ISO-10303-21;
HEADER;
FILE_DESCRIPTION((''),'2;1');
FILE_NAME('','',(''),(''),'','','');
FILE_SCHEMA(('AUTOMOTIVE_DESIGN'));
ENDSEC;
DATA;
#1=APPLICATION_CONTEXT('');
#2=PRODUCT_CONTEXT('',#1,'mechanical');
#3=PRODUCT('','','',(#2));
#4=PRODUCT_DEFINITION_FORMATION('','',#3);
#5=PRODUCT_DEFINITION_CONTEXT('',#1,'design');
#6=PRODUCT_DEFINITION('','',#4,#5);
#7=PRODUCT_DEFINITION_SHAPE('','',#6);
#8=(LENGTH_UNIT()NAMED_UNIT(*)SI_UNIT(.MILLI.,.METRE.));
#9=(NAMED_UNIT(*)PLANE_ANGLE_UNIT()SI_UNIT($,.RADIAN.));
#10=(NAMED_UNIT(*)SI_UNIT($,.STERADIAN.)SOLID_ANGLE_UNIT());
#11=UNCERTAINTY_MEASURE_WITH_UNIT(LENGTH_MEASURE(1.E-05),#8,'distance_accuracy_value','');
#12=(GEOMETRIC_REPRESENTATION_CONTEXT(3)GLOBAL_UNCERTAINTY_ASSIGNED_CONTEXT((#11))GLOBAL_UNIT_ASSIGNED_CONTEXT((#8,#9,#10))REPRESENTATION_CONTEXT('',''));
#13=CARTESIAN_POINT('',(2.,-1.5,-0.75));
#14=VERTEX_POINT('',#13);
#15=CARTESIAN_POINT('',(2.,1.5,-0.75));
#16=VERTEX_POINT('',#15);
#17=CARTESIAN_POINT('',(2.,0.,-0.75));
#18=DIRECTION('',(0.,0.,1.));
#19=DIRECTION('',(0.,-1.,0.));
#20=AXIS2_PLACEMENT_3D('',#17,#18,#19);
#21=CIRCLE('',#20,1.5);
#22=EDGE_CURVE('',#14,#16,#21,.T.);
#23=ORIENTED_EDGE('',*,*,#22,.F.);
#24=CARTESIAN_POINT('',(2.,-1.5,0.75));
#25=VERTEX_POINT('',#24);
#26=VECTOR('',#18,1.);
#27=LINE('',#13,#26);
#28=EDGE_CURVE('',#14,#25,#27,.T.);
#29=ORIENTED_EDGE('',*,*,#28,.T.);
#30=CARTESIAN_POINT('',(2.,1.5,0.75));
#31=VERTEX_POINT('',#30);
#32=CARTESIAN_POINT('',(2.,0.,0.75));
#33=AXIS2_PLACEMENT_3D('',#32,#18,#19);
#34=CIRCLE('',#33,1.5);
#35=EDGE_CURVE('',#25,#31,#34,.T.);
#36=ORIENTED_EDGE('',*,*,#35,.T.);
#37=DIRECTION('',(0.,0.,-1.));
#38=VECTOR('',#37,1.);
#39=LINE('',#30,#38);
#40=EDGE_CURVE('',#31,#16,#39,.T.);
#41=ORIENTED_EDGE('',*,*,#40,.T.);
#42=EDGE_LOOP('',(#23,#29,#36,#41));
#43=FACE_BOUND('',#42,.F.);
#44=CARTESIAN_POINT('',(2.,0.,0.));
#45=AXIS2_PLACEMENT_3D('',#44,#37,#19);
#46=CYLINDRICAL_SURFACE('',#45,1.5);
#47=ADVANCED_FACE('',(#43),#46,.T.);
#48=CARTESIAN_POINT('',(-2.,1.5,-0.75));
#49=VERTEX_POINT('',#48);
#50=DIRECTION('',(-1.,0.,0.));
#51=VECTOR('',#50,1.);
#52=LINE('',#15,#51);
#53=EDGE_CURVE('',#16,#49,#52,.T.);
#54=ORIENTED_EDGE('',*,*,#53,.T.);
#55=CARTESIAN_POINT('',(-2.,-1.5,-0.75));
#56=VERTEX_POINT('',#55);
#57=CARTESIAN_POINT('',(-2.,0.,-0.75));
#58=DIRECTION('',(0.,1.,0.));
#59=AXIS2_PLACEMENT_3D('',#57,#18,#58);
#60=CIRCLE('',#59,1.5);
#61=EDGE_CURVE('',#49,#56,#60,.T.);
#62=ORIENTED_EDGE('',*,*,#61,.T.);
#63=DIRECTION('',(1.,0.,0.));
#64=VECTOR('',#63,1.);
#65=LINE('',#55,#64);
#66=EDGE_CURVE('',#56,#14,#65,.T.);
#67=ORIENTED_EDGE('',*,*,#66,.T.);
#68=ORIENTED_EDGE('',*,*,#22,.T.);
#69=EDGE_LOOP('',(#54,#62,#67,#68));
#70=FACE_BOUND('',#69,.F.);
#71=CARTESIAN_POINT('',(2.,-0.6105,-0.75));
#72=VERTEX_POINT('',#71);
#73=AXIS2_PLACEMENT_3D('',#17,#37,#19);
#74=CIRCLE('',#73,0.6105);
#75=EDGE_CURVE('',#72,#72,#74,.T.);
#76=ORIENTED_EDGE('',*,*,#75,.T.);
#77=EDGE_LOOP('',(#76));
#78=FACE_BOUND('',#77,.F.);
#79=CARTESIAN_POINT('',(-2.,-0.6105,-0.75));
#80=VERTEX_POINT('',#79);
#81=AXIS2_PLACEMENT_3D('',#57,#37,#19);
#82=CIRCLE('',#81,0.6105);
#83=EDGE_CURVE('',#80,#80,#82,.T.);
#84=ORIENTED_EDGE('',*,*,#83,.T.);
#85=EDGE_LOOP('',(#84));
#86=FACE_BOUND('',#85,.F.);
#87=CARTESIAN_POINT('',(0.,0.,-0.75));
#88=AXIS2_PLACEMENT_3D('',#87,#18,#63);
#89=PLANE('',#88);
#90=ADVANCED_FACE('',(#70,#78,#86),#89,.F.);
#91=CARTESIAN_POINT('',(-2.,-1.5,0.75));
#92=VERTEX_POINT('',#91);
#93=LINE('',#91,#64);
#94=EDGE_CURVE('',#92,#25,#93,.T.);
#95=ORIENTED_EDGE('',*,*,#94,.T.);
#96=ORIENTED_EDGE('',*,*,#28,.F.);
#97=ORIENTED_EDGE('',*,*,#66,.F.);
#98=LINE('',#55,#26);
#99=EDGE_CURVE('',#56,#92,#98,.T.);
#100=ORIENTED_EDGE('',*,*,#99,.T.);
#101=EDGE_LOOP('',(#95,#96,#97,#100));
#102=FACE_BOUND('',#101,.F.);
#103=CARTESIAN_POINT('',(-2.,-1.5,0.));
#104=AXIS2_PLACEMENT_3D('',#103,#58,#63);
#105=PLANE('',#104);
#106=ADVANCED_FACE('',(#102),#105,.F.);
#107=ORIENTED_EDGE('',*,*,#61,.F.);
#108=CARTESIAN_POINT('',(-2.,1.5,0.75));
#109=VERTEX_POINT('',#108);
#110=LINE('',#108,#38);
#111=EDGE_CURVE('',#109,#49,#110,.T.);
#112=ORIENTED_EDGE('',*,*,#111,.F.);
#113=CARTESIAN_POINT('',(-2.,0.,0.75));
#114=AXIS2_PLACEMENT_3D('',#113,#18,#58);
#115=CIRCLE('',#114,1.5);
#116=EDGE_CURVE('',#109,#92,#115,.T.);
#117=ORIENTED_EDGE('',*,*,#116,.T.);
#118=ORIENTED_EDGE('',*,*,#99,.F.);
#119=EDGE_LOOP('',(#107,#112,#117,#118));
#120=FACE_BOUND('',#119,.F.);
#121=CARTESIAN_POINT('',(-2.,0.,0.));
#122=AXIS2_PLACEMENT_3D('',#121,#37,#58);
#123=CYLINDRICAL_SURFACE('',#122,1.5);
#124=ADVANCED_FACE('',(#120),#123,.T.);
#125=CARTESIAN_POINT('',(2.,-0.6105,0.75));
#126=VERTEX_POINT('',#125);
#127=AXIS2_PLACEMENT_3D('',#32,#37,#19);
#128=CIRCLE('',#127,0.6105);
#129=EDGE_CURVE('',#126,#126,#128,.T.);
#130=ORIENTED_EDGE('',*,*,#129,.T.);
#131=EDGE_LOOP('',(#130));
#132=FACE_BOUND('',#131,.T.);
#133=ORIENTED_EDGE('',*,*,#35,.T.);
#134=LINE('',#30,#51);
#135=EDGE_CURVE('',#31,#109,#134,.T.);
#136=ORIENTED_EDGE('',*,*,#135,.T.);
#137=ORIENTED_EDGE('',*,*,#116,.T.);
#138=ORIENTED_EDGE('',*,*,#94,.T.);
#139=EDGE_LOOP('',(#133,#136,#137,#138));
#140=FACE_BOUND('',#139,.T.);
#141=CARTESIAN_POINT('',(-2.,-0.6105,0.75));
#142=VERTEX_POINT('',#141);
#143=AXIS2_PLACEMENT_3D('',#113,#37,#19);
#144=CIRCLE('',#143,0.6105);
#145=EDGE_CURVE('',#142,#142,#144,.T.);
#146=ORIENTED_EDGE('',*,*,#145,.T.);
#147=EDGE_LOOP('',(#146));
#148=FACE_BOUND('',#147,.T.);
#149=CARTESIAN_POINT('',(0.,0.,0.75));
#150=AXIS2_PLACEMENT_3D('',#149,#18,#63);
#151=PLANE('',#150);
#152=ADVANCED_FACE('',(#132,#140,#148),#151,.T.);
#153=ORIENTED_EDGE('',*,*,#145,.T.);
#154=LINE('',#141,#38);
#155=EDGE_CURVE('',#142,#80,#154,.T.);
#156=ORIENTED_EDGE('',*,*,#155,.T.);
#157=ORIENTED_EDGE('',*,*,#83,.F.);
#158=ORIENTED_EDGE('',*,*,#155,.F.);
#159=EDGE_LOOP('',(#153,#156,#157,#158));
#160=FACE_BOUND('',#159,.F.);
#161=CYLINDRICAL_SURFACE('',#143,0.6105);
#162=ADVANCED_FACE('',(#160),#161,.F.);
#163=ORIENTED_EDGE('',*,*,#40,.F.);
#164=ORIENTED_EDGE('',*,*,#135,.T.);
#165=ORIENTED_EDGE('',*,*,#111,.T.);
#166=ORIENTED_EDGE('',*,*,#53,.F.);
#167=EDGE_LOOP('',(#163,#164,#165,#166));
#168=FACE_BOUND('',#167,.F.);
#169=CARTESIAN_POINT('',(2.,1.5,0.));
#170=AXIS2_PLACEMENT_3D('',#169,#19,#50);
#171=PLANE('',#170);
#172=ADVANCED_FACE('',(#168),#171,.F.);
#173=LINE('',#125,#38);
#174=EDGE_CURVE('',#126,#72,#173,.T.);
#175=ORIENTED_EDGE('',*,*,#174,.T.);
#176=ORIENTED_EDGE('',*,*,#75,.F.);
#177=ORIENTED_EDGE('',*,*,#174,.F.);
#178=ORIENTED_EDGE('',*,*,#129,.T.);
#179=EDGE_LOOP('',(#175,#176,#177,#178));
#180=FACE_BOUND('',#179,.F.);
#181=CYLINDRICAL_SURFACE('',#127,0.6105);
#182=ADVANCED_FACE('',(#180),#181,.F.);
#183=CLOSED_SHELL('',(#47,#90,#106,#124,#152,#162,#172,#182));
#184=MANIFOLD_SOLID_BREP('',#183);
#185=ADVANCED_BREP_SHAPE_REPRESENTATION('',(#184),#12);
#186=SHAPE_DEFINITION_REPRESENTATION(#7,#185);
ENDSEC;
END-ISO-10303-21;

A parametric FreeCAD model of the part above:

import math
import FreeCAD as App
import Part
import Sketcher

V = App.Vector

doc = App.newDocument("Part")
params = doc.addObject("Spreadsheet::Sheet", "Params")
for row, (alias, value) in enumerate([
    ("sketch1_radius", "1.5 mm"),
    ("sketch1_width", "4 mm"),
    ("pad1_length", "1.5 mm"),
    ("hole_diameter", "1.221 mm"),
], start=1):
    params.set(f"A{row}", alias)
    params.set(f"B{row}", "=" + value)
    params.setAlias(f"B{row}", alias)

body = doc.addObject("PartDesign::Body", "Body")

# Sketch on XY plane
sketch1 = body.newObject("Sketcher::SketchObject", "Sketch")
sketch1.AttachmentSupport = (doc.getObject("XY_Plane"), [""])
sketch1.MapMode = "FlatFace"
sketch1.addGeometry([
    Part.ArcOfCircle(Part.Circle(V(-2, 0, 0), V(0, 0, 1), 1.5), math.radians(90), math.radians(270)),
    Part.LineSegment(V(-2, -1.5, 0), V(2, -1.5, 0)),
    Part.ArcOfCircle(Part.Circle(V(2, 0, 0), V(0, 0, 1), 1.5), math.radians(-90), math.radians(90)),
    Part.LineSegment(V(2, 1.5, 0), V(-2, 1.5, 0)),
], False)
sketch1.addConstraint([
    Sketcher.Constraint("Tangent", 0, 2, 1, 1),
    Sketcher.Constraint("Tangent", 1, 2, 2, 1),
    Sketcher.Constraint("Tangent", 2, 2, 3, 1),
    Sketcher.Constraint("Tangent", 3, 2, 0, 1),
    Sketcher.Constraint("Horizontal", 1),
    Sketcher.Constraint("Horizontal", 3),
    Sketcher.Constraint("Symmetric", 0, 3, 2, 3, -1, 1),
    Sketcher.Constraint("Radius", 0, 1.5),
    Sketcher.Constraint("DistanceX", 1, 1, 1, 2, 4.0),
])
sketch1.setExpression("Constraints[7]", "Params.sketch1_radius")
sketch1.setExpression("Constraints[8]", "Params.sketch1_width")
pad1 = body.newObject("PartDesign::Pad", "Pad")
pad1.Profile = sketch1
pad1.setExpression("Length", "Params.pad1_length")
pad1.Midplane = True

# Sketch on XY plane
sketch2 = body.newObject("Sketcher::SketchObject", "Sketch001")
sketch2.AttachmentSupport = (doc.getObject("XY_Plane"), [""])
sketch2.MapMode = "FlatFace"
sketch2.AttachmentOffset = App.Placement(V(0, 0, 0.75), App.Rotation())
sketch2.addGeometry([
    Part.Circle(V(-2, 0, 0), V(0, 0, 1), 0.6105),
    Part.Circle(V(2, 0, 0), V(0, 0, 1), 0.6105),
], False)
sketch2.addConstraint([
    Sketcher.Constraint("Equal", 0, 1),
    Sketcher.Constraint("Symmetric", 0, 3, 1, 3, -1, 1),
    Sketcher.Constraint("PointOnObject", 0, 3, -1),
    Sketcher.Constraint("Diameter", 0, 1.221),
    Sketcher.Constraint("DistanceX", 0, 3, -1, 1, 2.0),
])
doc.recompute()
hole = body.newObject("PartDesign::Hole", "Hole")
hole.Profile = sketch2
hole.ThreadType = "None"
hole.setExpression("Diameter", "Params.hole_diameter")
hole.DepthType = "ThroughAll"

doc.recompute()
